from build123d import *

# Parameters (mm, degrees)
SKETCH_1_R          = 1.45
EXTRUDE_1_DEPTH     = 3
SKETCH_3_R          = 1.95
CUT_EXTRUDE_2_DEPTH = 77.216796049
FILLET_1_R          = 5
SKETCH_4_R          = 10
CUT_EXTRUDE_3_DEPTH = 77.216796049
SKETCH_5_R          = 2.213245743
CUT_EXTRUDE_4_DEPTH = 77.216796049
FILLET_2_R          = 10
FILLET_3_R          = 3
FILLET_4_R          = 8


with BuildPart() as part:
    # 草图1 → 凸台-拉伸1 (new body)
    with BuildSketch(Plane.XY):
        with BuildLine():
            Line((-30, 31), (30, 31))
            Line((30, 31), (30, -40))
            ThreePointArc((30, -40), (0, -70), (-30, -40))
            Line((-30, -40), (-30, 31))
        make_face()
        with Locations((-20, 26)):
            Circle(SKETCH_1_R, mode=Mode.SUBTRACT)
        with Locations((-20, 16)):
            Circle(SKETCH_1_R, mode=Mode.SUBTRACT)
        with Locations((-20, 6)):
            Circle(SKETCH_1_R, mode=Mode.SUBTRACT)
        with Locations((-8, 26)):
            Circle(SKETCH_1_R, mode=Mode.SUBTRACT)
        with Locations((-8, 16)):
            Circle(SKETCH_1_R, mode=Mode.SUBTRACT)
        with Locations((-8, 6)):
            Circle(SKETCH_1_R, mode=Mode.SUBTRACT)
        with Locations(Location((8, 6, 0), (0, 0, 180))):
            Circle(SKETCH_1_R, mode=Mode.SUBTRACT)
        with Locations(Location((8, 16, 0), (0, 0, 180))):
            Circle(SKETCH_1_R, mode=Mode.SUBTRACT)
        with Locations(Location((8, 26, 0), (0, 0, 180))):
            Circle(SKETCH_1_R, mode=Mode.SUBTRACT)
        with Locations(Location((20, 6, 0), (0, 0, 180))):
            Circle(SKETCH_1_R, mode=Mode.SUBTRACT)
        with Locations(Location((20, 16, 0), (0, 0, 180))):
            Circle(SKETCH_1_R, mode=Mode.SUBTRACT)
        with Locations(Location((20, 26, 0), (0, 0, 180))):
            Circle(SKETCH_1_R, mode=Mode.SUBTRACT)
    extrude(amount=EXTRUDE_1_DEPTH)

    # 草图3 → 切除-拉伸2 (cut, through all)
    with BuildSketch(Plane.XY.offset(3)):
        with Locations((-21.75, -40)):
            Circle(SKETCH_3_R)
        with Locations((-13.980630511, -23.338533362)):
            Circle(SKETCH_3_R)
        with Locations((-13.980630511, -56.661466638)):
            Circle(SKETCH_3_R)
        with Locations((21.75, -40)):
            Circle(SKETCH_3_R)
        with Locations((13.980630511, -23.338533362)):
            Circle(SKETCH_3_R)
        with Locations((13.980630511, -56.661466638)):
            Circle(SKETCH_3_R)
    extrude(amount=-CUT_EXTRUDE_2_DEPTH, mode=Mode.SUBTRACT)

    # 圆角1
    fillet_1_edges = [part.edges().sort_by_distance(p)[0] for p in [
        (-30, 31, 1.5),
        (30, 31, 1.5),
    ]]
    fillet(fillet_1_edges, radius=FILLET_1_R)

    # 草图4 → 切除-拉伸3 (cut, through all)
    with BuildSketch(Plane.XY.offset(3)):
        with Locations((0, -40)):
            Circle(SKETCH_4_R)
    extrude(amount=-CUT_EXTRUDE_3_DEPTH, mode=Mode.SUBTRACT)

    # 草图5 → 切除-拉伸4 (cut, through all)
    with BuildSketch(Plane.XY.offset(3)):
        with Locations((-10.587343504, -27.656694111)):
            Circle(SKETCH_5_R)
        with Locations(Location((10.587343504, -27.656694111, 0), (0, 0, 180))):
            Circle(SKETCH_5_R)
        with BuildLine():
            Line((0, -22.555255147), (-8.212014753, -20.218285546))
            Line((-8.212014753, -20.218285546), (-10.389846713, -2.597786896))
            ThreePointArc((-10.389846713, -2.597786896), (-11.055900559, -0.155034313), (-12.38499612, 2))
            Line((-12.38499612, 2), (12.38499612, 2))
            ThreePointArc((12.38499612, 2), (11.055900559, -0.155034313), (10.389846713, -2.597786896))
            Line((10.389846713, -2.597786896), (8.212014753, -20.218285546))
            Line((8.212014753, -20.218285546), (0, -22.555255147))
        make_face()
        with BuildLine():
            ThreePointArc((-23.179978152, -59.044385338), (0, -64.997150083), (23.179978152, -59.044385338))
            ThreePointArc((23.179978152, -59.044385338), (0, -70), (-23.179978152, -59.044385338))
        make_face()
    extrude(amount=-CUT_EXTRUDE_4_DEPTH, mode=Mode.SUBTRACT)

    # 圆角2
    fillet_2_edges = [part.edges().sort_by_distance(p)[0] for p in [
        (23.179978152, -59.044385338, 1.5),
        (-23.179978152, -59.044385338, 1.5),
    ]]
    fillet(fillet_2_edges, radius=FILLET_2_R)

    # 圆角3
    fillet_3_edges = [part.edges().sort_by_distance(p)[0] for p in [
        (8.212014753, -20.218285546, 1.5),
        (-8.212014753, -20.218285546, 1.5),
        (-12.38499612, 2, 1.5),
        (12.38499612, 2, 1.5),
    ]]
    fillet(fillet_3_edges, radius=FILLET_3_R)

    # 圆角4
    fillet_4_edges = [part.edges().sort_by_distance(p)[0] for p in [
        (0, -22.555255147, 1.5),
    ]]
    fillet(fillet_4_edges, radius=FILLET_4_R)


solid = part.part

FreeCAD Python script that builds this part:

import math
import FreeCAD as App
import Part
import Sketcher

V = App.Vector
Q = App.Units.Quantity


def edges_at(feature, points):
    """Names of the edges that pass closest to the given points."""
    edges = feature.Shape.Edges
    near = lambda p: min(range(len(edges)), key=lambda i: edges[i].distToShape(Part.Vertex(*p))[0])
    return sorted({f"Edge{near(p) + 1}" for p in points})

doc = App.newDocument("Part")
body = doc.addObject("PartDesign::Body", "Body")

# Sketch on XY plane
sketch1 = body.newObject("Sketcher::SketchObject", "Sketch")
sketch1.AttachmentSupport = (doc.getObject("XY_Plane"), [""])
sketch1.MapMode = "FlatFace"
sketch1.addGeometry(Part.LineSegment(V(30, 31, 0), V(-30, 31, 0)), False)
sketch1.addGeometry(Part.LineSegment(V(-30, 31, 0), V(-30, -40, 0)), False)
sketch1.addGeometry(Part.ArcOfCircle(Part.Circle(V(0, -40, 0), V(0, 0, 1), 30), math.radians(180), math.radians(360)), False)
sketch1.addGeometry(Part.LineSegment(V(30, -40, 0), V(30, 31, 0)), False)
sketch1.addGeometry(Part.Circle(V(20, 6, 0), V(0, 0, 1), 1.45), False)
sketch1.addGeometry(Part.Circle(V(8, 6, 0), V(0, 0, 1), 1.45), False)
sketch1.addGeometry(Part.Circle(V(-8, 6, 0), V(0, 0, 1), 1.45), False)
sketch1.addGeometry(Part.Circle(V(-20, 6, 0), V(0, 0, 1), 1.45), False)
sketch1.addGeometry(Part.Circle(V(20, 16, 0), V(0, 0, 1), 1.45), False)
sketch1.addGeometry(Part.Circle(V(8, 16, 0), V(0, 0, 1), 1.45), False)
sketch1.addGeometry(Part.Circle(V(20, 26, 0), V(0, 0, 1), 1.45), False)
sketch1.addGeometry(Part.Circle(V(8, 26, 0), V(0, 0, 1), 1.45), False)
sketch1.addGeometry(Part.Circle(V(-8, 16, 0), V(0, 0, 1), 1.45), False)
sketch1.addGeometry(Part.Circle(V(-20, 16, 0), V(0, 0, 1), 1.45), False)
sketch1.addGeometry(Part.Circle(V(-8, 26, 0), V(0, 0, 1), 1.45), False)
sketch1.addGeometry(Part.Circle(V(-20, 26, 0), V(0, 0, 1), 1.45), False)
sketch1.addConstraint(Sketcher.Constraint("Coincident", 0, 2, 1, 1))
sketch1.addConstraint(Sketcher.Constraint("Tangent", 1, 2, 2, 1))
sketch1.addConstraint(Sketcher.Constraint("Tangent", 2, 2, 3, 1))
sketch1.addConstraint(Sketcher.Constraint("Coincident", 3, 2, 0, 1))
sketch1.addConstraint(Sketcher.Constraint("Horizontal", 0))
sketch1.addConstraint(Sketcher.Constraint("Vertical", 1))
sketch1.addConstraint(Sketcher.Constraint("Vertical", 3))
sketch1.addConstraint(Sketcher.Constraint("Equal", 4, 5))
sketch1.addConstraint(Sketcher.Constraint("Equal", 5, 6))
sketch1.addConstraint(Sketcher.Constraint("Equal", 6, 7))
sketch1.addConstraint(Sketcher.Constraint("Equal", 7, 8))
sketch1.addConstraint(Sketcher.Constraint("Equal", 8, 9))
sketch1.addConstraint(Sketcher.Constraint("Equal", 9, 10))
sketch1.addConstraint(Sketcher.Constraint("Equal", 10, 11))
sketch1.addConstraint(Sketcher.Constraint("Equal", 11, 12))
sketch1.addConstraint(Sketcher.Constraint("Equal", 12, 13))
sketch1.addConstraint(Sketcher.Constraint("Equal", 13, 14))
sketch1.addConstraint(Sketcher.Constraint("Equal", 14, 15))
sketch1.addConstraint(Sketcher.Constraint("Symmetric", 5, 3, 6, 3, -2))
sketch1.addConstraint(Sketcher.Constraint("Symmetric", 4, 3, 7, 3, -2))
sketch1.addConstraint(Sketcher.Constraint("Symmetric", 9, 3, 12, 3, -2))
sketch1.addConstraint(Sketcher.Constraint("Symmetric", 8, 3, 13, 3, -2))
sketch1.addConstraint(Sketcher.Constraint("Symmetric", 11, 3, 14, 3, -2))
sketch1.addConstraint(Sketcher.Constraint("Symmetric", 10, 3, 15, 3, -2))
sketch1.addConstraint(Sketcher.Constraint("PointOnObject", 2, 3, -2))
sketch1.addConstraint(Sketcher.Constraint("Horizontal", 4, 3, 5, 3))
sketch1.addConstraint(Sketcher.Constraint("Horizontal", 8, 3, 9, 3))
sketch1.addConstraint(Sketcher.Constraint("Horizontal", 10, 3, 11, 3))
sketch1.addConstraint(Sketcher.Constraint("Vertical", 4, 3, 8, 3))
sketch1.addConstraint(Sketcher.Constraint("Vertical", 5, 3, 9, 3))
sketch1.addConstraint(Sketcher.Constraint("Vertical", 8, 3, 10, 3))
sketch1.addConstraint(Sketcher.Constraint("Vertical", 9, 3, 11, 3))
sketch1.addConstraint(Sketcher.Constraint("Radius", 2, Q("30 mm")))
sketch1.addConstraint(Sketcher.Constraint("Diameter", 4, Q("2.9 mm")))
sketch1.addConstraint(Sketcher.Constraint("DistanceY", 1, 2, 1, 1, Q("71 mm")))
sketch1.addConstraint(Sketcher.Constraint("DistanceY", 2, 3, -1, 1, Q("40 mm")))
sketch1.addConstraint(Sketcher.Constraint("DistanceX", -1, 1, 4, 3, Q("20 mm")))
sketch1.addConstraint(Sketcher.Constraint("DistanceY", -1, 1, 4, 3, Q("6 mm")))
sketch1.addConstraint(Sketcher.Constraint("DistanceX", -1, 1, 5, 3, Q("8 mm")))
sketch1.addConstraint(Sketcher.Constraint("DistanceY", -1, 1, 8, 3, Q("16 mm")))
sketch1.addConstraint(Sketcher.Constraint("DistanceY", -1, 1, 10, 3, Q("26 mm")))
pad1 = body.newObject("PartDesign::Pad", "Pad")
pad1.Profile = sketch1
pad1.Length = 3

# Sketch on XY plane
sketch2 = body.newObject("Sketcher::SketchObject", "Sketch001")
sketch2.AttachmentSupport = (doc.getObject("XY_Plane"), [""])
sketch2.MapMode = "FlatFace"
sketch2.AttachmentOffset = App.Placement(V(0, 0, 3), App.Rotation())
sketch2.addGeometry(Part.Circle(V(-21.75, -40, 0), V(0, 0, 1), 1.95), False)
sketch2.addGeometry(Part.Circle(V(-13.980631, -23.338533, 0), V(0, 0, 1), 1.95), False)
sketch2.addGeometry(Part.Circle(V(-13.980631, -56.661467, 0), V(0, 0, 1), 1.95), False)
sketch2.addGeometry(Part.Circle(V(21.75, -40, 0), V(0, 0, 1), 1.95), False)
sketch2.addGeometry(Part.Circle(V(13.980631, -23.338533, 0), V(0, 0, 1), 1.95), False)
sketch2.addGeometry(Part.Circle(V(13.980631, -56.661467, 0), V(0, 0, 1), 1.95), False)
sketch2.addConstraint(Sketcher.Constraint("Equal", 0, 1))
sketch2.addConstraint(Sketcher.Constraint("Equal", 1, 2))
sketch2.addConstraint(Sketcher.Constraint("Equal", 2, 3))
sketch2.addConstraint(Sketcher.Constraint("Equal", 3, 4))
sketch2.addConstraint(Sketcher.Constraint("Equal", 4, 5))
sketch2.addConstraint(Sketcher.Constraint("Symmetric", 0, 3, 3, 3, -2))
sketch2.addConstraint(Sketcher.Constraint("Symmetric", 1, 3, 4, 3, -2))
sketch2.addConstraint(Sketcher.Constraint("Symmetric", 2, 3, 5, 3, -2))
sketch2.addConstraint(Sketcher.Constraint("Vertical", 1, 3, 2, 3))
sketch2.addConstraint(Sketcher.Constraint("Diameter", 0, Q("3.9 mm")))
sketch2.addConstraint(Sketcher.Constraint("DistanceY", 0, 3, -1, 1, Q("40 mm")))
sketch2.addConstraint(Sketcher.Constraint("DistanceX", 0, 3, 3, 3, Q("43.5 mm")))
sketch2.addConstraint(Sketcher.Constraint("DistanceX", 1, 3, -1, 1, Q("13.980631 mm")))
sketch2.addConstraint(Sketcher.Constraint("DistanceY", 1, 3, -1, 1, Q("23.338533 mm")))
sketch2.addConstraint(Sketcher.Constraint("DistanceY", 2, 3, -1, 1, Q("56.661467 mm")))
pocket1 = body.newObject("PartDesign::Pocket", "Pocket")
pocket1.Profile = sketch2
pocket1.Type = "ThroughAll"
doc.recompute()

fillet = body.newObject("PartDesign::Fillet", "Fillet")
fillet.Base = (pocket1, edges_at(pocket1, [(-30, 31, 1.5), (30, 31, 1.5)]))
fillet.Radius = 5

# Sketch on XY plane
sketch3 = body.newObject("Sketcher::SketchObject", "Sketch002")
sketch3.AttachmentSupport = (doc.getObject("XY_Plane"), [""])
sketch3.MapMode = "FlatFace"
sketch3.AttachmentOffset = App.Placement(V(0, 0, 3), App.Rotation())
sketch3.addGeometry(Part.Circle(V(0, -40, 0), V(0, 0, 1), 10), False)
sketch3.addConstraint(Sketcher.Constraint("PointOnObject", 0, 3, -2))
sketch3.addConstraint(Sketcher.Constraint("Diameter", 0, Q("20 mm")))
sketch3.addConstraint(Sketcher.Constraint("DistanceY", 0, 3, -1, 1, Q("40 mm")))
pocket2 = body.newObject("PartDesign::Pocket", "Pocket001")
pocket2.Profile = sketch3
pocket2.Type = "ThroughAll"

# Sketch on XY plane
sketch4 = body.newObject("Sketcher::SketchObject", "Sketch003")
sketch4.AttachmentSupport = (doc.getObject("XY_Plane"), [""])
sketch4.MapMode = "FlatFace"
sketch4.AttachmentOffset = App.Placement(V(0, 0, 3), App.Rotation())
sketch4.addGeometry(Part.Circle(V(-10.587344, -27.656694, 0), V(0, 0, 1), 2.213246), False)
sketch4.addGeometry(Part.Circle(V(10.587344, -27.656694, 0), V(0, 0, 1), 2.213246), False)
sketch4.addGeometry(Part.LineSegment(V(-8.212015, -20.218286, 0), V(0, -22.555255, 0)), False)
sketch4.addGeometry(Part.LineSegment(V(0, -22.555255, 0), V(8.212015, -20.218286, 0)), False)
sketch4.addGeometry(Part.LineSegment(V(8.212015, -20.218286, 0), V(10.389847, -2.597787, 0)), False)
sketch4.addGeometry(Part.ArcOfCircle(Part.Circle(V(19.192368, -3.685748, 0), V(0, 0, 1), 8.8695), math.radians(140.130223), math.radians(172.954175)), False)
sketch4.addGeometry(Part.LineSegment(V(12.384996, 2, 0), V(-12.384996, 2, 0)), False)
sketch4.addGeometry(Part.ArcOfCircle(Part.Circle(V(-19.192368, -3.685748, 0), V(0, 0, 1), 8.8695), math.radians(7.045825), math.radians(39.869777)), False)
sketch4.addGeometry(Part.LineSegment(V(-10.389847, -2.597787, 0), V(-8.212015, -20.218286, 0)), False)
sketch4.addGeometry(Part.ArcOfCircle(Part.Circle(V(0, -16.889521, 0), V(0, 0, 1), 48.107629), math.radians(-118.80537), math.radians(-61.19463)), False)
sketch4.addGeometry(Part.ArcOfCircle(Part.Circle(V(0, -40, 0), V(0, 0, 1), 30), math.radians(-140.593895), math.radians(-39.406105)), False)
sketch4.addConstraint(Sketcher.Constraint("Coincident", 2, 2, 3, 1))
sketch4.addConstraint(Sketcher.Constraint("Coincident", 3, 2, 4, 1))
sketch4.addConstraint(Sketcher.Constraint("Tangent", 4, 2, 5, 2))
sketch4.addConstraint(Sketcher.Constraint("Coincident", 5, 1, 6, 1))
sketch4.addConstraint(Sketcher.Constraint("Coincident", 6, 2, 7, 2))
sketch4.addConstraint(Sketcher.Constraint("Tangent", 7, 1, 8, 1))
sketch4.addConstraint(Sketcher.Constraint("Coincident", 8, 2, 2, 1))
sketch4.addConstraint(Sketcher.Constraint("Coincident", 9, 1, 10, 1))
sketch4.addConstraint(Sketcher.Constraint("Coincident", 10, 2, 9, 2))
sketch4.addConstraint(Sketcher.Constraint("Horizontal", 6))
sketch4.addConstraint(Sketcher.Constraint("Equal", 0, 1))
sketch4.addConstraint(Sketcher.Constraint("Equal", 5, 7))
sketch4.addConstraint(Sketcher.Constraint("Symmetric", 0, 3, 1, 3, -2))
sketch4.addConstraint(Sketcher.Constraint("Symmetric", 5, 3, 7, 3, -2))
sketch4.addConstraint(Sketcher.Constraint("Symmetric", 3, 2, 8, 2, -2))
sketch4.addConstraint(Sketcher.Constraint("Symmetric", 9, 1, 10, 2, -2))
sketch4.addConstraint(Sketcher.Constraint("PointOnObject", 2, 2, -2))
sketch4.addConstraint(Sketcher.Constraint("Radius", 10, Q("30 mm")))
sketch4.addConstraint(Sketcher.Constraint("DistanceY", 10, 3, -1, 1, Q("40 mm")))
sketch4.addConstraint(Sketcher.Constraint("DistanceY", -1, 1, 5, 1, Q("2 mm")))
sketch4.addConstraint(Sketcher.Constraint("Radius", 5, Q("8.8695 mm")))
sketch4.addConstraint(Sketcher.Constraint("Diameter", 0, Q("4.426491 mm")))
sketch4.addConstraint(Sketcher.Constraint("Radius", 9, Q("48.107629 mm")))
sketch4.addConstraint(Sketcher.Constraint("DistanceY", 3, 2, 4, 2, Q("17.620499 mm")))
sketch4.addConstraint(Sketcher.Constraint("DistanceY", 9, 1, 8, 2, Q("38.8261 mm")))
sketch4.addConstraint(Sketcher.Constraint("Distance", 2, Q("8.538068 mm")))
sketch4.addConstraint(Sketcher.Constraint("DistanceX", 6, 2, 6, 1, Q("24.769992 mm")))
sketch4.addConstraint(Sketcher.Constraint("DistanceY", 9, 3, -1, 1, Q("16.889521 mm")))
sketch4.addConstraint(Sketcher.Constraint("DistanceX", 0, 3, 5, 3, Q("29.779711 mm")))
sketch4.addConstraint(Sketcher.Constraint("DistanceY", 0, 3, 2, 2, Q("5.101439 mm")))
sketch4.addConstraint(Sketcher.Constraint("DistanceX", 3, 2, 1, 3, Q("2.375329 mm")))
pocket3 = body.newObject("PartDesign::Pocket", "Pocket002")
pocket3.Profile = sketch4
pocket3.Type = "ThroughAll"
doc.recompute()

fillet2 = body.newObject("PartDesign::Fillet", "Fillet001")
fillet2.Base = (pocket3, edges_at(pocket3, [(23.18, -59.044, 1.5), (-23.18, -59.044, 1.5)]))
fillet2.Radius = 10
doc.recompute()

fillet3 = body.newObject("PartDesign::Fillet", "Fillet002")
fillet3.Base = (fillet2, edges_at(fillet2, [
    (8.212, -20.218, 1.5),
    (-8.212, -20.218, 1.5),
    (-12.385, 2, 1.5),
    (12.385, 2, 1.5),
]))
fillet3.Radius = 3
doc.recompute()

fillet4 = body.newObject("PartDesign::Fillet", "Fillet003")
fillet4.Base = (fillet3, edges_at(fillet3, [(0, -22.555, 1.5)]))
fillet4.Radius = 8

doc.recompute()
